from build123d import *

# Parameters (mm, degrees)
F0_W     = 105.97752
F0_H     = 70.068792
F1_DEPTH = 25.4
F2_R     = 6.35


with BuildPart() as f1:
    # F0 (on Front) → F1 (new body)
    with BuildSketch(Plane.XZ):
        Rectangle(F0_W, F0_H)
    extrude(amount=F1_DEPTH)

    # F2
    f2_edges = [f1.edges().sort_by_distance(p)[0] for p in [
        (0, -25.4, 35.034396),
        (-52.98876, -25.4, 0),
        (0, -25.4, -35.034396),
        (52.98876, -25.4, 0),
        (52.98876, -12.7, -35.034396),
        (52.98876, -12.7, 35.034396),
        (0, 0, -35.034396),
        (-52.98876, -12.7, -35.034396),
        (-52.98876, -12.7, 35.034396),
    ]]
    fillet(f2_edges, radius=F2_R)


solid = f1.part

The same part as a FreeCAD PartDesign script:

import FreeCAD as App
import Part
import Sketcher
from FreeCAD import Vector
Q = App.Units.Quantity


def edges_at(feature, points):
    """Names of the edges that pass closest to the given points."""
    edges = feature.Shape.Edges
    near = lambda p: min(range(len(edges)), key=lambda i: edges[i].distToShape(Part.Vertex(*p))[0])
    return sorted({f"Edge{near(p) + 1}" for p in points})


def add_polygon(sketch, points):
    """Adds a closed chain of lines whose ends are joined by coincident constraints."""
    first, n = sketch.GeometryCount, len(points)
    for a, b in zip(points, points[1:] + points[:1]):
        sketch.addGeometry(Part.LineSegment(App.Vector(*a, 0), App.Vector(*b, 0)), False)
    for i in range(n):
        sketch.addConstraint(Sketcher.Constraint("Coincident", first + i, 2, first + (i + 1) % n, 1))

doc = App.newDocument("Part")
body = doc.addObject("PartDesign::Body", "Body")

# Sketch on XZ plane
sketch1 = body.newObject("Sketcher::SketchObject", "Sketch")
sketch1.AttachmentSupport = (doc.getObject("XZ_Plane"), [""])
sketch1.MapMode = "FlatFace"
add_polygon(sketch1, [(-53, 35), (-53, -35), (53, -35), (53, 35)])  # lines 0-3
sketch1.addConstraint([
    Sketcher.Constraint("Vertical", 0),
    Sketcher.Constraint("Horizontal", 1),
    Sketcher.Constraint("Vertical", 2),
    Sketcher.Constraint("Horizontal", 3),
    Sketcher.Constraint("Symmetric", 0, 2, 2, 2, -1, 1),
    Sketcher.Constraint("DistanceX", 1, 1, 1, 2, Q("105.97752 mm")),
    Sketcher.Constraint("DistanceY", 0, 2, 0, 1, Q("70.068792 mm")),
])
pad1 = body.newObject("PartDesign::Pad", "Pad")
pad1.Profile = sketch1
pad1.Length = Q("1 in")
doc.recompute()

fillet = body.newObject("PartDesign::Fillet", "Fillet")
fillet.Base = (pad1, edges_at(pad1, [
    (0, -25.4, 35.034),
    (-52.989, -25.4, 0),
    (0, -25.4, -35.034),
    (52.989, -25.4, 0),
    (52.989, -12.7, -35.034),
    (52.989, -12.7, 35.034),
    (0, 0, -35.034),
    (-52.989, -12.7, -35.034),
    (-52.989, -12.7, 35.034),
]))
fillet.Radius = Q("0.25 in")

doc.recompute()
